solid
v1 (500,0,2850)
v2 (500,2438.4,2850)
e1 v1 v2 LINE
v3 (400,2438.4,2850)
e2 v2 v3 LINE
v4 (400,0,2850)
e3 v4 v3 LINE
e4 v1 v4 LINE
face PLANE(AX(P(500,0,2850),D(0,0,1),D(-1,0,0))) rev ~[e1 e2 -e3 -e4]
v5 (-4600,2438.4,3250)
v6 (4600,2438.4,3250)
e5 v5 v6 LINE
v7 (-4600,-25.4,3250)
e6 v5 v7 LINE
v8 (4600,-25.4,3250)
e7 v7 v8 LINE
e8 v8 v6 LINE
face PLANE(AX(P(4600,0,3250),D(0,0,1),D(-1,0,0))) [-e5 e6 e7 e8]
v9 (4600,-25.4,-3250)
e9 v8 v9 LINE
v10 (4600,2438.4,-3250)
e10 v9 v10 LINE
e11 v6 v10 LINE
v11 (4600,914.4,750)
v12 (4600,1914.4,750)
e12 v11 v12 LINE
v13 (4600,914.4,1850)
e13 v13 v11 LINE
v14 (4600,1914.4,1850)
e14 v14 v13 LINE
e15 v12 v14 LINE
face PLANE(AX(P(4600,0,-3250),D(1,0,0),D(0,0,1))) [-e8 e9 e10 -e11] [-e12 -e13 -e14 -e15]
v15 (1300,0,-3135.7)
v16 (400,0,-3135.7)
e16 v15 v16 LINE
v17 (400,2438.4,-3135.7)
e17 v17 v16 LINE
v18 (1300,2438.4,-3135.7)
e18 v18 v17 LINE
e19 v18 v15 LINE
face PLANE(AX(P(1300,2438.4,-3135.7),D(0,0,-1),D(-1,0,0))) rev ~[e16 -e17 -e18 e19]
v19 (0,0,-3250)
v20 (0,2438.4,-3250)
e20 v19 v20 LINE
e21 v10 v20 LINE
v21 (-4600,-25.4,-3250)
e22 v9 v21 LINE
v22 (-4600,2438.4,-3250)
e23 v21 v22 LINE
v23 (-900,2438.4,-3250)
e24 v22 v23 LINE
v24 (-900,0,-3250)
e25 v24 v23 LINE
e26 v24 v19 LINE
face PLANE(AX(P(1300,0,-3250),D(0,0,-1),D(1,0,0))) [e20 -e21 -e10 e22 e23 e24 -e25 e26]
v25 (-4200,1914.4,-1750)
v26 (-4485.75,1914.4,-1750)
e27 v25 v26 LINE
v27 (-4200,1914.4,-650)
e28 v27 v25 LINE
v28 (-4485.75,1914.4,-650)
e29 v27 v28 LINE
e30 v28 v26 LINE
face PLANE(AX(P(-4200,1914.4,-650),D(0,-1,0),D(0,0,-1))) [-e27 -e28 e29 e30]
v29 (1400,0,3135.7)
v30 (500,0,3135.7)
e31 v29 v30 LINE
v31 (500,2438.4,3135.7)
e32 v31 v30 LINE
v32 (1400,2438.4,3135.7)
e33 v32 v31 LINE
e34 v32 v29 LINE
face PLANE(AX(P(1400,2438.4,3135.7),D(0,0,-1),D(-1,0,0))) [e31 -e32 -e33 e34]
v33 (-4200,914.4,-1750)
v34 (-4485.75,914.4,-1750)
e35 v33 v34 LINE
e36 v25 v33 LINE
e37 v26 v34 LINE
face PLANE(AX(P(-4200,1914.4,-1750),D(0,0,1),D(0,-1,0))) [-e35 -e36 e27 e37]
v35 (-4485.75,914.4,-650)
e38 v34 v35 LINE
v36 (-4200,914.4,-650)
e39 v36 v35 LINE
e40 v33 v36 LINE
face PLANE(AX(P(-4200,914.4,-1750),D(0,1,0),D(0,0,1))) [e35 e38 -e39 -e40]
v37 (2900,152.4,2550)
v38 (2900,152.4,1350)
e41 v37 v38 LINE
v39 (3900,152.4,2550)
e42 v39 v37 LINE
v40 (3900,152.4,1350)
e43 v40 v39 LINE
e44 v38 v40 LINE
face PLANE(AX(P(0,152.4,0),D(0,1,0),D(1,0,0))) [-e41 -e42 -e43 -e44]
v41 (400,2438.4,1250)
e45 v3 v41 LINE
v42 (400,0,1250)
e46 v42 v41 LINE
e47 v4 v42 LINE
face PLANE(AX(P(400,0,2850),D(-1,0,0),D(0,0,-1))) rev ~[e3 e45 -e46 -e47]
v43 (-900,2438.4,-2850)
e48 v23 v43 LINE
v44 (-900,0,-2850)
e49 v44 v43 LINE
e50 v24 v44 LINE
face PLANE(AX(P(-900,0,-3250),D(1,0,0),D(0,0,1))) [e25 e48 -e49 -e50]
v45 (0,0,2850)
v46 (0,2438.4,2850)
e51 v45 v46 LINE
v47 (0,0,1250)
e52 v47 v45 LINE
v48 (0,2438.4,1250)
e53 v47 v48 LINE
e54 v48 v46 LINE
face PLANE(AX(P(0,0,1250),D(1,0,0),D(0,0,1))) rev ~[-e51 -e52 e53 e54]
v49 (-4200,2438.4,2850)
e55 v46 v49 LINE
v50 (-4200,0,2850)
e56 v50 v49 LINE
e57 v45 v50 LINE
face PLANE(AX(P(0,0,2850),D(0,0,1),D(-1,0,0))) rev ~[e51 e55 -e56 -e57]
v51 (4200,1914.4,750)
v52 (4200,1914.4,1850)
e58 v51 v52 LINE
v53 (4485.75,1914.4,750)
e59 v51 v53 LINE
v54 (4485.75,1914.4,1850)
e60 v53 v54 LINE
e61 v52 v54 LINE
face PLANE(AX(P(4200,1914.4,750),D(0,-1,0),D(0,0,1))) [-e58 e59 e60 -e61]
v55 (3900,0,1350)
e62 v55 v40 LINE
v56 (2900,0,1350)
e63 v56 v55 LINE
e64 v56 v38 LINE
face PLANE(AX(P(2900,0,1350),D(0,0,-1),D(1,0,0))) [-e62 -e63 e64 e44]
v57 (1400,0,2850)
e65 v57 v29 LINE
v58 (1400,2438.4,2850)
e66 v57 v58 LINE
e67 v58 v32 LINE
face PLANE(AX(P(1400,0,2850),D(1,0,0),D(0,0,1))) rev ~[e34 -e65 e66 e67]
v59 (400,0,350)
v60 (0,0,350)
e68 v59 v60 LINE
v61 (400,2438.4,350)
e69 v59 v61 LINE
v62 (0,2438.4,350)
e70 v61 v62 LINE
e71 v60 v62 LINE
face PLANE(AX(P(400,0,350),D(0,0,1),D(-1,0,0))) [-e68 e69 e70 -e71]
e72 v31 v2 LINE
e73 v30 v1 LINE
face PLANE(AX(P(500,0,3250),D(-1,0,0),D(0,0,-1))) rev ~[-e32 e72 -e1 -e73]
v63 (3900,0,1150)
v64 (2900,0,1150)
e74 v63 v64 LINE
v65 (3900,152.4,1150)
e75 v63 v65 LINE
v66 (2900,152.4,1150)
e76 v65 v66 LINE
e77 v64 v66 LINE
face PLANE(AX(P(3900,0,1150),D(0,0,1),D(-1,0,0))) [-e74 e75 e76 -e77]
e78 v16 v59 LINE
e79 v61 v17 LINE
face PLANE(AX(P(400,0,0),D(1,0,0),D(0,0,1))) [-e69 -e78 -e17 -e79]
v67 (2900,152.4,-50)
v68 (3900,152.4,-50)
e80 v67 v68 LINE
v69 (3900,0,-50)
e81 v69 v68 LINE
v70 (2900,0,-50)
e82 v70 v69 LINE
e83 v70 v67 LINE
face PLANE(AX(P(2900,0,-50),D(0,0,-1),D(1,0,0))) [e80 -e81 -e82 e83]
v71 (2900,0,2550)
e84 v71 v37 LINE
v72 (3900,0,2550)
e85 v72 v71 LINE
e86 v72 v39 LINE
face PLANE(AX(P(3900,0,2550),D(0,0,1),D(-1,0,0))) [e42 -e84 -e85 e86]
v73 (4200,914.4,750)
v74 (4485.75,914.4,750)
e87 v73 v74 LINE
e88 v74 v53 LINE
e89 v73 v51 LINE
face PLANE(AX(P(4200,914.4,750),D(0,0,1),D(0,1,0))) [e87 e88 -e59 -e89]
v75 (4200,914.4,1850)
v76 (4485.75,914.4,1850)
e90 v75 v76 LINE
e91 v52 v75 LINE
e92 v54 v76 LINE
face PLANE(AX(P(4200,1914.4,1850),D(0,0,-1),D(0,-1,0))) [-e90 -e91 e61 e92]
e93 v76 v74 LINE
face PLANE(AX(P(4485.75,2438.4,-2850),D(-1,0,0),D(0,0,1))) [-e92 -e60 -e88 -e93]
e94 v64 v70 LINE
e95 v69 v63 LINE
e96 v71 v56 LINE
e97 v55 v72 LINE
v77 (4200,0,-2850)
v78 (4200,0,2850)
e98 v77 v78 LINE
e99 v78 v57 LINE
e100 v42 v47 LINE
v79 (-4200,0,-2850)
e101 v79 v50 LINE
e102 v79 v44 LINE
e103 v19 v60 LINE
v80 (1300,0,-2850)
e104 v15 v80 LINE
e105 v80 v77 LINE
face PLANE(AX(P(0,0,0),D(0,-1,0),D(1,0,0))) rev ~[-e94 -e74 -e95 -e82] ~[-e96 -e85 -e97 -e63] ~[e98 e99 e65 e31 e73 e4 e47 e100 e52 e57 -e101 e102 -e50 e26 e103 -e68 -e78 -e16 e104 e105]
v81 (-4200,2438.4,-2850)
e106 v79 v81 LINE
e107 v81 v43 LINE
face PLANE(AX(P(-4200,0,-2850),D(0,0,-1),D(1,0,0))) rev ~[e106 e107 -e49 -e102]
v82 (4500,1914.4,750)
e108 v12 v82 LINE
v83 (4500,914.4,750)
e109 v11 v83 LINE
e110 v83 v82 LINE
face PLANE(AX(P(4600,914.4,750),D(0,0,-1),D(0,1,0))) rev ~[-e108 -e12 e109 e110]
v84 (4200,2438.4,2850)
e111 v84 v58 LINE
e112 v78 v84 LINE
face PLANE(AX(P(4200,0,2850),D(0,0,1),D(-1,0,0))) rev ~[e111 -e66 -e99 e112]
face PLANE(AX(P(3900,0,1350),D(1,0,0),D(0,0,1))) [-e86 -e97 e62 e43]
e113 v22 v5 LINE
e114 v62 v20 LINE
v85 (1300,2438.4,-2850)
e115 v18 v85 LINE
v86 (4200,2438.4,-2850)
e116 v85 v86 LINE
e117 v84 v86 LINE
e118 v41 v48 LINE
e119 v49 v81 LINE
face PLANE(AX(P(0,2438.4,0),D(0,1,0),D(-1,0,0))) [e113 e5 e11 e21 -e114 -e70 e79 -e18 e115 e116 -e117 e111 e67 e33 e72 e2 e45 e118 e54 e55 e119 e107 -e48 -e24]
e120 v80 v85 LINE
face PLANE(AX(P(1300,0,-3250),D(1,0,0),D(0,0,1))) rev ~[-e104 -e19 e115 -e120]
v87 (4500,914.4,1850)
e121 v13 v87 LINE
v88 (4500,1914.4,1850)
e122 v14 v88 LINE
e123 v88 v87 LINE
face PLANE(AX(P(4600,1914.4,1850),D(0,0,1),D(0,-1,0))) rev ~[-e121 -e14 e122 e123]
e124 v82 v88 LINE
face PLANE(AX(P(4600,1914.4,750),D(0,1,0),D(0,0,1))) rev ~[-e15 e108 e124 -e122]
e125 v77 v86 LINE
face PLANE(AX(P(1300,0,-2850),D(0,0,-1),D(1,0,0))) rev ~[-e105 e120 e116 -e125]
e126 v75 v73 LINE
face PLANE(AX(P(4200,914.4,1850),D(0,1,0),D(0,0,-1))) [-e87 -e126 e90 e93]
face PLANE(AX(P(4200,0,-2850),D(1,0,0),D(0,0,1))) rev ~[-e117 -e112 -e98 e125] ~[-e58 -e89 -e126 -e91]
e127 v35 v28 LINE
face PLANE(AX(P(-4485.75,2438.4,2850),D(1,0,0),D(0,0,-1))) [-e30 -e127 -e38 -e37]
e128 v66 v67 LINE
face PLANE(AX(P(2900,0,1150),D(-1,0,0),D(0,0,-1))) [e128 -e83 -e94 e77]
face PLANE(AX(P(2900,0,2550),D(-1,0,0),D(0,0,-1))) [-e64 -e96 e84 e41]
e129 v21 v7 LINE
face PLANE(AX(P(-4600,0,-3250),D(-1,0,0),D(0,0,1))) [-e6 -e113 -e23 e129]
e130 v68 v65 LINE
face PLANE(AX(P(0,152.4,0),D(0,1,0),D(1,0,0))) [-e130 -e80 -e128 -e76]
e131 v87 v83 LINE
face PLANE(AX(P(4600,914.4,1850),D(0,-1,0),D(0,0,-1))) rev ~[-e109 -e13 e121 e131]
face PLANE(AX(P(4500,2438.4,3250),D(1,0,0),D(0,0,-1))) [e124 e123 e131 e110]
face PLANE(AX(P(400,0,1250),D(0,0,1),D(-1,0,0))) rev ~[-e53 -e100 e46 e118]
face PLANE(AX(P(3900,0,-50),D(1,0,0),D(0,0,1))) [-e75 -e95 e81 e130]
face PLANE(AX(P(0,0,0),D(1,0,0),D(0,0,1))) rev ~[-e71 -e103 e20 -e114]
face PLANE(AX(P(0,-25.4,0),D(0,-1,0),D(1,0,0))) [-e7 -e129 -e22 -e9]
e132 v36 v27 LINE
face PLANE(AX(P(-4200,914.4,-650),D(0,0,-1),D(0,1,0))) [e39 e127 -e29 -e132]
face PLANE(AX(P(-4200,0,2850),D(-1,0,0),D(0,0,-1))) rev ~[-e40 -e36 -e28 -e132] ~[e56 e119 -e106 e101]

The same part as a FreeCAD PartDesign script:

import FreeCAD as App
import Part
import Sketcher

doc = App.newDocument("Part")
body = doc.addObject("PartDesign::Body", "Body")
body.AllowCompound = True

# Sketch on XZ plane
sketch1 = doc.addObject("Sketcher::SketchObject", "Sketch")
body.addObject(sketch1)
sketch1.AttachmentSupport = (doc.XZ_Plane, [""])
sketch1.MapMode = "FlatFace"
sketch1.addGeometry([
    Part.LineSegment(App.Vector(4200, -2850, 0), App.Vector(4200, 2850, 0)),  # 0
    Part.LineSegment(App.Vector(4200, 2850, 0), App.Vector(1400, 2850, 0)),  # 1
    Part.LineSegment(App.Vector(1400, 2850, 0), App.Vector(1400, 3250, 0)),  # 2
    Part.LineSegment(App.Vector(1400, 3250, 0), App.Vector(4600, 3250, 0)),  # 3
    Part.LineSegment(App.Vector(4600, 3250, 0), App.Vector(4600, -3250, 0)),  # 4
    Part.LineSegment(App.Vector(4600, -3250, 0), App.Vector(1300, -3250, 0)),  # 5
    Part.LineSegment(App.Vector(1300, -3250, 0), App.Vector(1300, -2850, 0)),  # 6
    Part.LineSegment(App.Vector(1300, -2850, 0), App.Vector(4200, -2850, 0)),  # 7
    Part.LineSegment(App.Vector(0, 350, 0), App.Vector(400, 350, 0)),  # 8
    Part.LineSegment(App.Vector(400, 350, 0), App.Vector(400, -3250, 0)),  # 9
    Part.LineSegment(App.Vector(400, -3250, 0), App.Vector(0, -3250, 0)),  # 10
    Part.LineSegment(App.Vector(0, -3250, 0), App.Vector(0, 350, 0)),  # 11
    Part.LineSegment(App.Vector(400, 1250, 0), App.Vector(0, 1250, 0)),  # 12
    Part.LineSegment(App.Vector(0, 1250, 0), App.Vector(0, 2850, 0)),  # 13
    Part.LineSegment(App.Vector(0, 2850, 0), App.Vector(-4200, 2850, 0)),  # 14
    Part.LineSegment(App.Vector(-4200, 2850, 0), App.Vector(-4200, -2850, 0)),  # 15
    Part.LineSegment(App.Vector(-4200, -2850, 0), App.Vector(-900, -2850, 0)),  # 16
    Part.LineSegment(App.Vector(-900, -2850, 0), App.Vector(-900, -3250, 0)),  # 17
    Part.LineSegment(App.Vector(-900, -3250, 0), App.Vector(-4600, -3250, 0)),  # 18
    Part.LineSegment(App.Vector(-4600, -3250, 0), App.Vector(-4600, 3250, 0)),  # 19
    Part.LineSegment(App.Vector(-4600, 3250, 0), App.Vector(500, 3250, 0)),  # 20
    Part.LineSegment(App.Vector(500, 3250, 0), App.Vector(500, 2850, 0)),  # 21
    Part.LineSegment(App.Vector(500, 2850, 0), App.Vector(400, 2850, 0)),  # 22
    Part.LineSegment(App.Vector(400, 2850, 0), App.Vector(400, 1250, 0)),  # 23
], False)
sketch1.addConstraint([
    Sketcher.Constraint("Coincident", 0, 2, 1, 1),
    Sketcher.Constraint("Coincident", 1, 2, 2, 1),
    Sketcher.Constraint("Coincident", 2, 2, 3, 1),
    Sketcher.Constraint("Coincident", 3, 2, 4, 1),
    Sketcher.Constraint("Coincident", 4, 2, 5, 1),
    Sketcher.Constraint("Coincident", 5, 2, 6, 1),
    Sketcher.Constraint("Coincident", 6, 2, 7, 1),
    Sketcher.Constraint("Coincident", 7, 2, 0, 1),
    Sketcher.Constraint("Coincident", 8, 2, 9, 1),
    Sketcher.Constraint("Coincident", 9, 2, 10, 1),
    Sketcher.Constraint("Coincident", 10, 2, 11, 1),
    Sketcher.Constraint("Coincident", 11, 2, 8, 1),
    Sketcher.Constraint("Coincident", 12, 2, 13, 1),
    Sketcher.Constraint("Coincident", 13, 2, 14, 1),
    Sketcher.Constraint("Coincident", 14, 2, 15, 1),
    Sketcher.Constraint("Coincident", 15, 2, 16, 1),
    Sketcher.Constraint("Coincident", 16, 2, 17, 1),
    Sketcher.Constraint("Coincident", 17, 2, 18, 1),
    Sketcher.Constraint("Coincident", 18, 2, 19, 1),
    Sketcher.Constraint("Coincident", 19, 2, 20, 1),
    Sketcher.Constraint("Coincident", 20, 2, 21, 1),
    Sketcher.Constraint("Coincident", 21, 2, 22, 1),
    Sketcher.Constraint("Coincident", 22, 2, 23, 1),
    Sketcher.Constraint("Coincident", 23, 2, 12, 1),
    Sketcher.Constraint("Vertical", 0),
    Sketcher.Constraint("Horizontal", 1),
    Sketcher.Constraint("Vertical", 2),
    Sketcher.Constraint("Horizontal", 3),
    Sketcher.Constraint("Vertical", 4),
    Sketcher.Constraint("Horizontal", 5),
    Sketcher.Constraint("Vertical", 6),
    Sketcher.Constraint("Horizontal", 7),
    Sketcher.Constraint("Horizontal", 8),
    Sketcher.Constraint("Vertical", 9),
    Sketcher.Constraint("Horizontal", 10),
    Sketcher.Constraint("Vertical", 11),
    Sketcher.Constraint("Horizontal", 12),
    Sketcher.Constraint("Vertical", 13),
    Sketcher.Constraint("Horizontal", 14),
    Sketcher.Constraint("Vertical", 15),
    Sketcher.Constraint("Horizontal", 16),
    Sketcher.Constraint("Vertical", 17),
    Sketcher.Constraint("Horizontal", 18),
    Sketcher.Constraint("Vertical", 19),
    Sketcher.Constraint("Horizontal", 20),
    Sketcher.Constraint("Vertical", 21),
    Sketcher.Constraint("Horizontal", 22),
    Sketcher.Constraint("Vertical", 23),
    Sketcher.Constraint("Symmetric", 7, 2, 14, 2, -1, 1),
    Sketcher.Constraint("Symmetric", 3, 2, 18, 2, -1, 1),
    Sketcher.Constraint("PointOnObject", 10, 2, -2),
    Sketcher.Constraint("PointOnObject", 12, 2, -2),
    Sketcher.Constraint("Horizontal", 5, 2, 9, 2),
    Sketcher.Constraint("Horizontal", 1, 2, 13, 2),
    Sketcher.Constraint("Horizontal", 7, 2, 15, 2),
    Sketcher.Constraint("Horizontal", 10, 2, 17, 2),
    Sketcher.Constraint("Horizontal", 3, 2, 19, 2),
    Sketcher.Constraint("Horizontal", 14, 2, 21, 2),
    Sketcher.Constraint("Vertical", 9, 2, 22, 2),
    Sketcher.Constraint("Equal", 5, 16),
    Sketcher.Constraint("Equal", 12, 2),
    Sketcher.Constraint("DistanceX", 1, 2, 1, 1, 2800.0),
    Sketcher.Constraint("DistanceX", 8, 1, 8, 2, 400.0),
    Sketcher.Constraint("DistanceY", 0, 1, 0, 2, 5700.0),
    Sketcher.Constraint("DistanceY", 9, 2, 9, 1, 3600.0),
    Sketcher.Constraint("DistanceY", 13, 1, 13, 2, 1600.0),
    Sketcher.Constraint("DistanceX", 16, 2, -1, 1, 900.0),
    Sketcher.Constraint("DistanceX", 0, 2, 3, 2, 400.0),
    Sketcher.Constraint("DistanceX", 20, 2, 2, 2, 900.0),
    Sketcher.Constraint("DistanceX", 5, 2, 5, 1, 3300.0),
])
pad1 = doc.addObject("PartDesign::Pad", "Pad")
body.addObject(pad1)
pad1.Profile = sketch1
pad1.Length = 2438.4
pad1.Reversed = True

# Sketch on XZ plane
sketch2 = doc.addObject("Sketcher::SketchObject", "Sketch001")
body.addObject(sketch2)
sketch2.AttachmentSupport = (doc.XZ_Plane, [""])
sketch2.MapMode = "FlatFace"
sketch2.addGeometry([
    Part.LineSegment(App.Vector(-4600, 3250, 0), App.Vector(-4600, -3250, 0)),
    Part.LineSegment(App.Vector(-4600, -3250, 0), App.Vector(4600, -3250, 0)),
    Part.LineSegment(App.Vector(4600, -3250, 0), App.Vector(4600, 3250, 0)),
    Part.LineSegment(App.Vector(4600, 3250, 0), App.Vector(-4600, 3250, 0)),
], False)
sketch2.addConstraint([
    Sketcher.Constraint("Coincident", 0, 2, 1, 1),
    Sketcher.Constraint("Coincident", 1, 2, 2, 1),
    Sketcher.Constraint("Coincident", 2, 2, 3, 1),
    Sketcher.Constraint("Coincident", 3, 2, 0, 1),
    Sketcher.Constraint("Vertical", 0),
    Sketcher.Constraint("Horizontal", 1),
    Sketcher.Constraint("Vertical", 2),
    Sketcher.Constraint("Horizontal", 3),
    Sketcher.Constraint("Symmetric", 0, 2, 2, 2, -1, 1),
    Sketcher.Constraint("DistanceX", 1, 1, 1, 2, 9200.0),
    Sketcher.Constraint("DistanceY", 0, 2, 0, 1, 6500.0),
])
pad2 = doc.addObject("PartDesign::Pad", "Pad001")
body.addObject(pad2)
pad2.Profile = sketch2
pad2.Length = 25.4

# Sketch on XZ plane
sketch3 = doc.addObject("Sketcher::SketchObject", "Sketch002")
body.addObject(sketch3)
sketch3.AttachmentSupport = (doc.XZ_Plane, [""])
sketch3.MapMode = "FlatFace"
sketch3.AttachmentOffset = App.Placement(App.Vector(0, 0, -2438.4), App.Rotation())
sketch3.addGeometry([
    Part.LineSegment(App.Vector(500, 3250, 0), App.Vector(1400, 3250, 0)),  # 0
    Part.LineSegment(App.Vector(1400, 3250, 0), App.Vector(1400, 3135.7, 0)),  # 1
    Part.LineSegment(App.Vector(1400, 3135.7, 0), App.Vector(500, 3135.7, 0)),  # 2
    Part.LineSegment(App.Vector(500, 3135.7, 0), App.Vector(500, 3250, 0)),  # 3
    Part.LineSegment(App.Vector(1300, -3135.7, 0), App.Vector(1300, -3250, 0)),  # 4
    Part.LineSegment(App.Vector(1300, -3250, 0), App.Vector(400, -3250, 0)),  # 5
    Part.LineSegment(App.Vector(400, -3250, 0), App.Vector(400, -3135.7, 0)),  # 6
    Part.LineSegment(App.Vector(400, -3135.7, 0), App.Vector(1300, -3135.7, 0)),  # 7
], False)
sketch3.addConstraint([
    Sketcher.Constraint("Coincident", 0, 2, 1, 1),
    Sketcher.Constraint("Coincident", 1, 2, 2, 1),
    Sketcher.Constraint("Coincident", 2, 2, 3, 1),
    Sketcher.Constraint("Coincident", 3, 2, 0, 1),
    Sketcher.Constraint("Coincident", 4, 2, 5, 1),
    Sketcher.Constraint("Coincident", 5, 2, 6, 1),
    Sketcher.Constraint("Coincident", 6, 2, 7, 1),
    Sketcher.Constraint("Coincident", 7, 2, 4, 1),
    Sketcher.Constraint("Horizontal", 0),
    Sketcher.Constraint("Vertical", 1),
    Sketcher.Constraint("Horizontal", 2),
    Sketcher.Constraint("Vertical", 3),
    Sketcher.Constraint("Vertical", 4),
    Sketcher.Constraint("Horizontal", 5),
    Sketcher.Constraint("Vertical", 6),
    Sketcher.Constraint("Horizontal", 7),
    Sketcher.Constraint("Equal", 2, 5),
    Sketcher.Constraint("Equal", 3, 4),
    Sketcher.Constraint("DistanceY", 1, 2, 1, 1, 114.3),
    Sketcher.Constraint("DistanceX", 0, 1, 0, 2, 900.0),
    Sketcher.Constraint("DistanceX", -1, 1, 0, 2, 1400.0),
    Sketcher.Constraint("DistanceY", -1, 1, 0, 2, 3250.0),
    Sketcher.Constraint("DistanceX", -1, 1, 4, 2, 1300.0),
    Sketcher.Constraint("DistanceY", 4, 2, -1, 1, 3250.0),
])
pad3 = doc.addObject("PartDesign::Pad", "Pad002")
body.addObject(pad3)
pad3.Profile = sketch3
pad3.Length = 2438.4

# Sketch on YZ plane
sketch4 = doc.addObject("Sketcher::SketchObject", "Sketch003")
body.addObject(sketch4)
sketch4.AttachmentSupport = (doc.YZ_Plane, [""])
sketch4.MapMode = "FlatFace"
sketch4.AttachmentOffset = App.Placement(App.Vector(0, 0, -4200), App.Rotation())
sketch4.addGeometry([
    Part.LineSegment(App.Vector(1914.4, -1750, 0), App.Vector(1914.4, -650, 0)),
    Part.LineSegment(App.Vector(1914.4, -650, 0), App.Vector(914.4, -650, 0)),
    Part.LineSegment(App.Vector(914.4, -650, 0), App.Vector(914.4, -1750, 0)),
    Part.LineSegment(App.Vector(914.4, -1750, 0), App.Vector(1914.4, -1750, 0)),
], False)
sketch4.addConstraint([
    Sketcher.Constraint("Coincident", 0, 2, 1, 1),
    Sketcher.Constraint("Coincident", 1, 2, 2, 1),
    Sketcher.Constraint("Coincident", 2, 2, 3, 1),
    Sketcher.Constraint("Coincident", 3, 2, 0, 1),
    Sketcher.Constraint("Vertical", 0),
    Sketcher.Constraint("Horizontal", 1),
    Sketcher.Constraint("Vertical", 2),
    Sketcher.Constraint("Horizontal", 3),
    Sketcher.Constraint("DistanceX", 1, 2, 1, 1, 1000.0),
    Sketcher.Constraint("DistanceY", 0, 1, 0, 2, 1100.0),
    Sketcher.Constraint("DistanceX", -1, 1, 1, 2, 914.4),
    Sketcher.Constraint("DistanceY", 0, 2, -1, 1, 650.0),
])
pocket1 = doc.addObject("PartDesign::Pocket", "Pocket")
body.addObject(pocket1)
pocket1.Profile = sketch4
pocket1.Length = 285.75

# Sketch on YZ plane
sketch5 = doc.addObject("Sketcher::SketchObject", "Sketch004")
body.addObject(sketch5)
sketch5.AttachmentSupport = (doc.YZ_Plane, [""])
sketch5.MapMode = "FlatFace"
sketch5.AttachmentOffset = App.Placement(App.Vector(0, 0, 4200), App.Rotation())
sketch5.addGeometry([
    Part.LineSegment(App.Vector(1914.4, 1850, 0), App.Vector(1914.4, 750, 0)),
    Part.LineSegment(App.Vector(1914.4, 750, 0), App.Vector(914.4, 750, 0)),
    Part.LineSegment(App.Vector(914.4, 750, 0), App.Vector(914.4, 1850, 0)),
    Part.LineSegment(App.Vector(914.4, 1850, 0), App.Vector(1914.4, 1850, 0)),
], False)
sketch5.addConstraint([
    Sketcher.Constraint("Coincident", 0, 2, 1, 1),
    Sketcher.Constraint("Coincident", 1, 2, 2, 1),
    Sketcher.Constraint("Coincident", 2, 2, 3, 1),
    Sketcher.Constraint("Coincident", 3, 2, 0, 1),
    Sketcher.Constraint("Vertical", 0),
    Sketcher.Constraint("Horizontal", 1),
    Sketcher.Constraint("Vertical", 2),
    Sketcher.Constraint("Horizontal", 3),
    Sketcher.Constraint("DistanceX", 1, 2, 1, 1, 1000.0),
    Sketcher.Constraint("DistanceY", 0, 2, 0, 1, 1100.0),
    Sketcher.Constraint("DistanceX", -1, 1, 1, 2, 914.4),
    Sketcher.Constraint("DistanceY", -1, 1, 0, 2, 750.0),
])
pocket2 = doc.addObject("PartDesign::Pocket", "Pocket001")
body.addObject(pocket2)
pocket2.Profile = sketch5
pocket2.Length = 285.75
pocket2.Reversed = True

# Sketch on YZ plane
sketch6 = doc.addObject("Sketcher::SketchObject", "Sketch005")
body.addObject(sketch6)
sketch6.AttachmentSupport = (doc.YZ_Plane, [""])
sketch6.MapMode = "FlatFace"
sketch6.AttachmentOffset = App.Placement(App.Vector(0, 0, 4600), App.Rotation())
sketch6.addGeometry([
    Part.LineSegment(App.Vector(1914.4, 1850, 0), App.Vector(914.4, 1850, 0)),
    Part.LineSegment(App.Vector(914.4, 1850, 0), App.Vector(914.4, 750, 0)),
    Part.LineSegment(App.Vector(914.4, 750, 0), App.Vector(1914.4, 750, 0)),
    Part.LineSegment(App.Vector(1914.4, 750, 0), App.Vector(1914.4, 1850, 0)),
], False)
sketch6.addConstraint([
    Sketcher.Constraint("Coincident", 0, 2, 1, 1),
    Sketcher.Constraint("Coincident", 1, 2, 2, 1),
    Sketcher.Constraint("Coincident", 2, 2, 3, 1),
    Sketcher.Constraint("Coincident", 3, 2, 0, 1),
    Sketcher.Constraint("Horizontal", 0),
    Sketcher.Constraint("Vertical", 1),
    Sketcher.Constraint("Horizontal", 2),
    Sketcher.Constraint("Vertical", 3),
    Sketcher.Constraint("DistanceX", 0, 2, 0, 1, 1000.0),
    Sketcher.Constraint("DistanceY", 1, 2, 1, 1, 1100.0),
    Sketcher.Constraint("DistanceY", -1, 1, 0, 2, 1850.0),
    Sketcher.Constraint("DistanceX", -1, 1, 0, 2, 914.4),
])
pocket3 = doc.addObject("PartDesign::Pocket", "Pocket002")
body.addObject(pocket3)
pocket3.Profile = sketch6
pocket3.Length = 100

# Sketch on XZ plane
sketch7 = doc.addObject("Sketcher::SketchObject", "Sketch006")
body.addObject(sketch7)
sketch7.AttachmentSupport = (doc.XZ_Plane, [""])
sketch7.MapMode = "FlatFace"
sketch7.addGeometry([
    Part.LineSegment(App.Vector(3900, -50, 0), App.Vector(2900, -50, 0)),  # 0
    Part.LineSegment(App.Vector(2900, -50, 0), App.Vector(2900, 1150, 0)),  # 1
    Part.LineSegment(App.Vector(2900, 1150, 0), App.Vector(3900, 1150, 0)),  # 2
    Part.LineSegment(App.Vector(3900, 1150, 0), App.Vector(3900, -50, 0)),  # 3
    Part.LineSegment(App.Vector(3900, 1350, 0), App.Vector(2900, 1350, 0)),  # 4
    Part.LineSegment(App.Vector(2900, 1350, 0), App.Vector(2900, 2550, 0)),  # 5
    Part.LineSegment(App.Vector(2900, 2550, 0), App.Vector(3900, 2550, 0)),  # 6
    Part.LineSegment(App.Vector(3900, 2550, 0), App.Vector(3900, 1350, 0)),  # 7
], False)
sketch7.addConstraint([
    Sketcher.Constraint("Coincident", 0, 2, 1, 1),
    Sketcher.Constraint("Coincident", 1, 2, 2, 1),
    Sketcher.Constraint("Coincident", 2, 2, 3, 1),
    Sketcher.Constraint("Coincident", 3, 2, 0, 1),
    Sketcher.Constraint("Coincident", 4, 2, 5, 1),
    Sketcher.Constraint("Coincident", 5, 2, 6, 1),
    Sketcher.Constraint("Coincident", 6, 2, 7, 1),
    Sketcher.Constraint("Coincident", 7, 2, 4, 1),
    Sketcher.Constraint("Horizontal", 0),
    Sketcher.Constraint("Vertical", 1),
    Sketcher.Constraint("Horizontal", 2),
    Sketcher.Constraint("Vertical", 3),
    Sketcher.Constraint("Horizontal", 4),
    Sketcher.Constraint("Vertical", 5),
    Sketcher.Constraint("Horizontal", 6),
    Sketcher.Constraint("Vertical", 7),
    Sketcher.Constraint("Vertical", 1, 2, 4, 2),
    Sketcher.Constraint("Vertical", 3, 2, 6, 2),
    Sketcher.Constraint("Equal", 3, 5),
    Sketcher.Constraint("DistanceX", 0, 2, 0, 1, 1000.0),
    Sketcher.Constraint("DistanceY", 1, 1, 1, 2, 1200.0),
    Sketcher.Constraint("DistanceY", 1, 2, 4, 2, 200.0),
    Sketcher.Constraint("DistanceX", -1, 1, 0, 2, 2900.0),
    Sketcher.Constraint("DistanceY", 0, 2, -1, 1, 50.0),
])
pad4 = doc.addObject("PartDesign::Pad", "Pad003")
body.addObject(pad4)
pad4.Profile = sketch7
pad4.Length = 152.4
pad4.Reversed = True

doc.recompute()
